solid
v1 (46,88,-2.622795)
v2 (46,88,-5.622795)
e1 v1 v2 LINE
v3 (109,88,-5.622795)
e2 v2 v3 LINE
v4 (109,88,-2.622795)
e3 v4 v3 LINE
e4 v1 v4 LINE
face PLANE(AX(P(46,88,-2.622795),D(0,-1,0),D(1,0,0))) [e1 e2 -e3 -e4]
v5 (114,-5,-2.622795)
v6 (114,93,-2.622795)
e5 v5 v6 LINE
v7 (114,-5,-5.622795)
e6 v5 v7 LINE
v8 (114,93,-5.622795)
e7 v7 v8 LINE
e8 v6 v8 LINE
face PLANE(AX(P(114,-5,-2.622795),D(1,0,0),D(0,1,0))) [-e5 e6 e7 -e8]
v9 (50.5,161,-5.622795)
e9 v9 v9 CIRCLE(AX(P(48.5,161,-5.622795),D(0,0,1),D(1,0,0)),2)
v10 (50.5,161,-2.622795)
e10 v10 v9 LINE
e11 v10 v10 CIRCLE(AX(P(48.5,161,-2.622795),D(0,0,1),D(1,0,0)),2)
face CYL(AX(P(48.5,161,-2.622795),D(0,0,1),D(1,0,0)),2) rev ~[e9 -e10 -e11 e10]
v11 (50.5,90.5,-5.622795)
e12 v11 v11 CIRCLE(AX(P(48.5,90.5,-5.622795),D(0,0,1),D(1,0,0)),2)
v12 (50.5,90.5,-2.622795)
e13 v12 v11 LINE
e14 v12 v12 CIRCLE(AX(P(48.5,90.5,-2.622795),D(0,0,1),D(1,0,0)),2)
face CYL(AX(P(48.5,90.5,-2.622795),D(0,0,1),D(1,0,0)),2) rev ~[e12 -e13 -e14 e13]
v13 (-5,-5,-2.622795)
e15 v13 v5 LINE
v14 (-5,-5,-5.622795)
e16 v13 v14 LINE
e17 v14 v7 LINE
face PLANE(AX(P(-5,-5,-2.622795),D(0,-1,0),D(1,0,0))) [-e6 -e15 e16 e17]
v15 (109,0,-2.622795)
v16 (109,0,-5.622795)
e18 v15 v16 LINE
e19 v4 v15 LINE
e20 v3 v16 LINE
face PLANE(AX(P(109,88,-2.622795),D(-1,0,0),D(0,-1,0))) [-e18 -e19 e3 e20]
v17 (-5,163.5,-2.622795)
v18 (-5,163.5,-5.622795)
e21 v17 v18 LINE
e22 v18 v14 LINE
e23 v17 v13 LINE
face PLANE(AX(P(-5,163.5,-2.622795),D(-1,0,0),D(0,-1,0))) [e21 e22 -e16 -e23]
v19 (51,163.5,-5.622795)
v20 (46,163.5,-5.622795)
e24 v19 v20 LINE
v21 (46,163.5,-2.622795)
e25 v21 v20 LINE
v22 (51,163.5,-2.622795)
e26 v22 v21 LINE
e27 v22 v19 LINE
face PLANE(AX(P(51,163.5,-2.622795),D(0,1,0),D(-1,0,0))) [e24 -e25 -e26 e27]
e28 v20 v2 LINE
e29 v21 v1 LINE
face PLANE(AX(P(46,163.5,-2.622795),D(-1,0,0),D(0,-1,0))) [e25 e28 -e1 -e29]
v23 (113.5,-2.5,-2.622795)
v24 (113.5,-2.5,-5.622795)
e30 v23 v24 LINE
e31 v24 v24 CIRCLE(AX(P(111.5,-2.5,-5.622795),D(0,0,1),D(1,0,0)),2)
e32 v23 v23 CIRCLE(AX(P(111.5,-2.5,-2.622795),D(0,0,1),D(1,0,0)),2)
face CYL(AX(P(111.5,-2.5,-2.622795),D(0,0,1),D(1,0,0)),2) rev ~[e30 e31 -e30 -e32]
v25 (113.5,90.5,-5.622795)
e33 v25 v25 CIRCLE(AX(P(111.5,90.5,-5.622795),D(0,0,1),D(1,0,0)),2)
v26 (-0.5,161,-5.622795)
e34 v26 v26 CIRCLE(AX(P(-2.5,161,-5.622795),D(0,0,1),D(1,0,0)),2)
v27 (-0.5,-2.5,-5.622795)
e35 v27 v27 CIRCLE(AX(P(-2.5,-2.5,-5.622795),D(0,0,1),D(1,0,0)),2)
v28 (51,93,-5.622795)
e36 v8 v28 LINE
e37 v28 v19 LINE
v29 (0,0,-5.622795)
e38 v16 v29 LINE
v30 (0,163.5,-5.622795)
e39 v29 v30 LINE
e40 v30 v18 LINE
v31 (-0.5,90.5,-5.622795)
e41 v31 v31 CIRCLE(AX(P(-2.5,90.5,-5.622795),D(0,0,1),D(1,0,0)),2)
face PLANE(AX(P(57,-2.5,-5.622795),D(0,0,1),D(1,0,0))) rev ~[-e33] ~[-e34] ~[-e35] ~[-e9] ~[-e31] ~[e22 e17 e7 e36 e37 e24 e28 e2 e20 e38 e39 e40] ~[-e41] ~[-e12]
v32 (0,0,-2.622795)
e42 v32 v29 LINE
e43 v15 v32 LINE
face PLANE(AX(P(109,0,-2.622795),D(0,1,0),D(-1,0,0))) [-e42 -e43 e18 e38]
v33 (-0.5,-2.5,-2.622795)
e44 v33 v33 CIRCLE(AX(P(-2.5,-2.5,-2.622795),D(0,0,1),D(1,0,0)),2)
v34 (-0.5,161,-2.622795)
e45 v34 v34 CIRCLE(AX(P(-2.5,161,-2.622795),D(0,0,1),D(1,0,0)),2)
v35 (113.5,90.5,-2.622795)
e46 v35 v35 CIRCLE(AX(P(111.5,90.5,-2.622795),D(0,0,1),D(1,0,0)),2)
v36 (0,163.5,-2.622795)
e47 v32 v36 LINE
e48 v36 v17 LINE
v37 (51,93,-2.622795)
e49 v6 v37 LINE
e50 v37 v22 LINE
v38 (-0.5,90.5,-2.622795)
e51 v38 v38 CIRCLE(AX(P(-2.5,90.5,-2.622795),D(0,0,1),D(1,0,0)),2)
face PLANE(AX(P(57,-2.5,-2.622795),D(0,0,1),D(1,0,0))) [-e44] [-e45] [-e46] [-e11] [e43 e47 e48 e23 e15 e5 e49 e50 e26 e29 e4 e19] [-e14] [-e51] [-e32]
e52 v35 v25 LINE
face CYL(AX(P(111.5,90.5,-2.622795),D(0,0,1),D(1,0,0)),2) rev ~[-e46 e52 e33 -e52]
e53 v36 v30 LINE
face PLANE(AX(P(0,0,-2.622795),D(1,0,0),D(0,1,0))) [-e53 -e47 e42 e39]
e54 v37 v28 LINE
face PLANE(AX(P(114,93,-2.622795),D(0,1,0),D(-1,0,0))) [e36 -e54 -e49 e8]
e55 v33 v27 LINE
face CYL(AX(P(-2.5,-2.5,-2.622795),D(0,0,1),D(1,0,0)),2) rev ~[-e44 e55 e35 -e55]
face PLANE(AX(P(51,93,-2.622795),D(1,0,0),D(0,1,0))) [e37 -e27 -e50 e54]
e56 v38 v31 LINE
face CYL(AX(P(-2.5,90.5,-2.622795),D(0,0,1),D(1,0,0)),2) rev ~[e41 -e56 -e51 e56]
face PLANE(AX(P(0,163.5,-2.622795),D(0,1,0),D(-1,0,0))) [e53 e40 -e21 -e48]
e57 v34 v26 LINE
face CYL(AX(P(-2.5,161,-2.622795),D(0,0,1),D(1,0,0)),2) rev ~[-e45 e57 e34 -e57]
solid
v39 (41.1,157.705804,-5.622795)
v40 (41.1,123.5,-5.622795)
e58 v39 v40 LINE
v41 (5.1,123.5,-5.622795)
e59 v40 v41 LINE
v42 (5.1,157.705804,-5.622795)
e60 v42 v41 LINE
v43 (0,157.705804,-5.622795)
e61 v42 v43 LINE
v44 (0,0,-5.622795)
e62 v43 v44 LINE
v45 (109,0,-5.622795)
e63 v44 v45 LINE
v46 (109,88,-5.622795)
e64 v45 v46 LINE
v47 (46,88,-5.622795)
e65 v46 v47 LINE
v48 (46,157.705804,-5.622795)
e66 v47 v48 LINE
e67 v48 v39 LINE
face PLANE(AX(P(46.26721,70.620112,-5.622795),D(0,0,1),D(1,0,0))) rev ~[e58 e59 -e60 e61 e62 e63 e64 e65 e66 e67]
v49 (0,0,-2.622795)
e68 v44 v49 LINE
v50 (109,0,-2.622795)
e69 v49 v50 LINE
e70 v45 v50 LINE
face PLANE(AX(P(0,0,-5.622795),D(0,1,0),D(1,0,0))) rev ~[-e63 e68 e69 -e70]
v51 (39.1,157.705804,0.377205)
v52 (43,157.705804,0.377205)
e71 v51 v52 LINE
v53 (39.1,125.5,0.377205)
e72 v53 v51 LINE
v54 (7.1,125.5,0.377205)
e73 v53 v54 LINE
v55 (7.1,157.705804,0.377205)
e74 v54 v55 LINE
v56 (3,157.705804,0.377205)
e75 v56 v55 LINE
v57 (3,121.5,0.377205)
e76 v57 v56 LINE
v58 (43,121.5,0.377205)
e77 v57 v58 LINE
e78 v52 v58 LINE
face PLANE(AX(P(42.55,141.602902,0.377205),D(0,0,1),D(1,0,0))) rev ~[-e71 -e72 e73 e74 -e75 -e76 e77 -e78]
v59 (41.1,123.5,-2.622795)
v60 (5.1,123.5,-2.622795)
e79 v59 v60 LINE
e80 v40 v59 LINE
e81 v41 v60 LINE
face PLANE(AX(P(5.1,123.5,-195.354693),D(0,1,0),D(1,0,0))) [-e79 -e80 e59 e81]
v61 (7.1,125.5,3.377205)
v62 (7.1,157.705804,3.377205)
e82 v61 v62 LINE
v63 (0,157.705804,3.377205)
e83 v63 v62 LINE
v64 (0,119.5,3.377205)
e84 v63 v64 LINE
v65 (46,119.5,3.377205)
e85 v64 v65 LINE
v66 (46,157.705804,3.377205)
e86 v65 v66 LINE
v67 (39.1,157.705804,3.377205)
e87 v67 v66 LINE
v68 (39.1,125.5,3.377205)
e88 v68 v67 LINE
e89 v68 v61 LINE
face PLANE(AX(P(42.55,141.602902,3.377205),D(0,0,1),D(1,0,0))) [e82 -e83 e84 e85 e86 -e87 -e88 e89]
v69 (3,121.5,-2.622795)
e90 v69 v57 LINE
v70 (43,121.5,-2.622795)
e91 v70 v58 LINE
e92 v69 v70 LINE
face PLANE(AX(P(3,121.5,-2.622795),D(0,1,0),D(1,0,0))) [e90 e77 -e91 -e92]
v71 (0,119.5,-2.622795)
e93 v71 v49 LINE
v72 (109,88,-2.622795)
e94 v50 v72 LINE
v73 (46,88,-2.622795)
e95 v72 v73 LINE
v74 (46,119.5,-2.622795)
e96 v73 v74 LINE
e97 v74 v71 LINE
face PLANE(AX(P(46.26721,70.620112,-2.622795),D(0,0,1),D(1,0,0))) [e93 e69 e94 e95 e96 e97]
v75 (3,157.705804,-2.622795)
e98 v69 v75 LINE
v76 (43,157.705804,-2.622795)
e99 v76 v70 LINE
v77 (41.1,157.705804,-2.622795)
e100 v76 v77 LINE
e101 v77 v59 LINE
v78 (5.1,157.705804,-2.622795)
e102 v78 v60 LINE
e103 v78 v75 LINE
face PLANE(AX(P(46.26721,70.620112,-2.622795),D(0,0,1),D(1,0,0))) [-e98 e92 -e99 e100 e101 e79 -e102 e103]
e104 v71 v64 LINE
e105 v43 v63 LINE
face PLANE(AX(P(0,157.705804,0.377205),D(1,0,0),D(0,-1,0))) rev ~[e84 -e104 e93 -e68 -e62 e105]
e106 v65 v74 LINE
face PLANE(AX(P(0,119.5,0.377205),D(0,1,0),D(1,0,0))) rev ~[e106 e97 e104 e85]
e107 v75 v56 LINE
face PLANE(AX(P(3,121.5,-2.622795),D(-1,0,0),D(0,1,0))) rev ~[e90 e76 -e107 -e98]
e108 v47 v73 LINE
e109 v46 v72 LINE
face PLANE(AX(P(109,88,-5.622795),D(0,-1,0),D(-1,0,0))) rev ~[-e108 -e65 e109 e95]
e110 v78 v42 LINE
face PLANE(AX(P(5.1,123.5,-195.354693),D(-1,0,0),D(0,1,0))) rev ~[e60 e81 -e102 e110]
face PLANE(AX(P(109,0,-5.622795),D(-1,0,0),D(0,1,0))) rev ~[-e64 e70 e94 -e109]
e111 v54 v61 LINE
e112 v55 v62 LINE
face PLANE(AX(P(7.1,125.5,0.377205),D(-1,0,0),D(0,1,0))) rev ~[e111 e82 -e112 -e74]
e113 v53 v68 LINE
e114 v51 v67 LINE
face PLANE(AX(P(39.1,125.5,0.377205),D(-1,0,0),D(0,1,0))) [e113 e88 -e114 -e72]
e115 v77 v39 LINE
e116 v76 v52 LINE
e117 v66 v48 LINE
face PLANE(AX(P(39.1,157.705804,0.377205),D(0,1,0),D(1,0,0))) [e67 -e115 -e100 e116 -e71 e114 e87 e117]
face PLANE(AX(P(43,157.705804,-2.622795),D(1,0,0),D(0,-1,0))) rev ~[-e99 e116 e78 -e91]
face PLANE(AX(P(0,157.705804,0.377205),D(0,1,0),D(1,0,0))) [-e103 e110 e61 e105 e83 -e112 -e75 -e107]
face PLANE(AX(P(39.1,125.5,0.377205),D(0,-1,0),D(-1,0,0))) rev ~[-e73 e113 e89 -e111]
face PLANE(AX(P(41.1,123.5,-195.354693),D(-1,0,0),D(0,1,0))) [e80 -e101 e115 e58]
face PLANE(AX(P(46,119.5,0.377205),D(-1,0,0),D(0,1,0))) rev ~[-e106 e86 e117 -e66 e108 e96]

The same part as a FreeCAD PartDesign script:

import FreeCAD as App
import Part
import Sketcher

V = App.Vector
Q = App.Units.Quantity


def add_polygon(sketch, points):
    """Adds a closed chain of lines whose ends are joined by coincident constraints."""
    first, n = sketch.GeometryCount, len(points)
    for a, b in zip(points, points[1:] + points[:1]):
        sketch.addGeometry(Part.LineSegment(App.Vector(*a, 0), App.Vector(*b, 0)), False)
    for i in range(n):
        sketch.addConstraint(Sketcher.Constraint("Coincident", first + i, 2, first + (i + 1) % n, 1))

doc = App.newDocument("Part")
body = doc.addObject("PartDesign::Body", "Body")

sketch1 = doc.addObject("Sketcher::SketchObject", "Sketch")
body.addObject(sketch1)
sketch1.AttachmentSupport = (doc.XY_Plane, [""])
sketch1.MapMode = "FlatFace"
sketch1.AttachmentOffset = App.Placement(V(0, 0, -5.622795), App.Rotation())
add_polygon(sketch1, [(0, 0), (109, 0), (109, 88), (46, 88), (46, 157.705804), (0, 157.705804)])
sketch1.addConstraint([
    Sketcher.Constraint("Horizontal", 0),
    Sketcher.Constraint("Vertical", 1),
    Sketcher.Constraint("Horizontal", 2),
    Sketcher.Constraint("Vertical", 3),
    Sketcher.Constraint("Horizontal", 4),
    Sketcher.Constraint("Vertical", 5),
    Sketcher.Constraint("Coincident", 5, 2, -1, 1),
    Sketcher.Constraint("DistanceX", 0, 1, 0, 2, Q("109 mm")),
    Sketcher.Constraint("DistanceX", 2, 2, 2, 1, Q("63 mm")),
    Sketcher.Constraint("DistanceY", 1, 1, 1, 2, Q("88 mm")),
    Sketcher.Constraint("DistanceY", 3, 1, 3, 2, Q("69.705804 mm")),
])
pad1 = doc.addObject("PartDesign::Pad", "Pad")
body.addObject(pad1)
pad1.Profile = sketch1
pad1.Length = 3

sketch2 = doc.addObject("Sketcher::SketchObject", "Sketch001")
body.addObject(sketch2)
sketch2.AttachmentSupport = (doc.XY_Plane, [""])
sketch2.MapMode = "FlatFace"
sketch2.AttachmentOffset = App.Placement(V(0, 0, -2.622795), App.Rotation())
add_polygon(sketch2, [(5.1, 159.5), (5.1, 123.5), (41.1, 123.5), (41.1, 159.5)])
sketch2.addConstraint([
    Sketcher.Constraint("Vertical", 0),
    Sketcher.Constraint("Horizontal", 1),
    Sketcher.Constraint("Vertical", 2),
    Sketcher.Constraint("Horizontal", 3),
    Sketcher.Constraint("Equal", 3, 0),
    Sketcher.Constraint("DistanceX", 1, 1, 1, 2, Q("36 mm")),
    Sketcher.Constraint("DistanceX", -1, 1, 0, 2, Q("5.1 mm")),
    Sketcher.Constraint("DistanceY", -1, 1, 0, 2, Q("123.5 mm")),
])
pocket1 = doc.addObject("PartDesign::Pocket", "Pocket")
body.addObject(pocket1)
pocket1.Profile = sketch2
pocket1.Type = "ThroughAll"
pocket1.Midplane = True

sketch3 = doc.addObject("Sketcher::SketchObject", "Sketch002")
body.addObject(sketch3)
sketch3.AttachmentSupport = (doc.XY_Plane, [""])
sketch3.MapMode = "FlatFace"
sketch3.AttachmentOffset = App.Placement(V(0, 0, -2.622795), App.Rotation())
add_polygon(sketch3, [(46, 119.5), (46, 157.705804), (43, 157.705804), (43, 121.5), (3, 121.5), (3, 157.705804), (0, 157.705804), (0, 119.5)])
sketch3.addConstraint([
    Sketcher.Constraint("Vertical", 0),
    Sketcher.Constraint("Horizontal", 1),
    Sketcher.Constraint("Vertical", 2),
    Sketcher.Constraint("Horizontal", 3),
    Sketcher.Constraint("Vertical", 4),
    Sketcher.Constraint("Horizontal", 5),
    Sketcher.Constraint("Vertical", 6),
    Sketcher.Constraint("Horizontal", 7),
    Sketcher.Constraint("PointOnObject", 5, 2, -2),
    Sketcher.Constraint("Horizontal", 1, 2, 4, 2),
    Sketcher.Constraint("Equal", 1, 5),
    Sketcher.Constraint("DistanceX", 1, 2, 1, 1, Q("3 mm")),
    Sketcher.Constraint("DistanceX", 3, 2, 3, 1, Q("40 mm")),
    Sketcher.Constraint("DistanceY", 6, 2, 3, 2, Q("2 mm")),
    Sketcher.Constraint("DistanceY", -1, 1, 2, 2, Q("121.5 mm")),
    Sketcher.Constraint("DistanceY", 0, 1, 0, 2, Q("38.205804 mm")),
])
pad2 = doc.addObject("PartDesign::Pad", "Pad001")
body.addObject(pad2)
pad2.Profile = sketch3
pad2.Length = 3

sketch4 = doc.addObject("Sketcher::SketchObject", "Sketch003")
body.addObject(sketch4)
sketch4.AttachmentSupport = (doc.XY_Plane, [""])
sketch4.MapMode = "FlatFace"
sketch4.AttachmentOffset = App.Placement(V(0, 0, 0.377205), App.Rotation())
add_polygon(sketch4, [(39.1, 157.705804), (39.1, 125.5), (7.1, 125.5), (7.1, 157.705804), (0, 157.705804), (0, 119.5), (46, 119.5), (46, 157.705804)])
sketch4.addConstraint([
    Sketcher.Constraint("Vertical", 0),
    Sketcher.Constraint("Horizontal", 1),
    Sketcher.Constraint("Vertical", 2),
    Sketcher.Constraint("Horizontal", 3),
    Sketcher.Constraint("Vertical", 4),
    Sketcher.Constraint("Horizontal", 5),
    Sketcher.Constraint("Vertical", 6),
    Sketcher.Constraint("Horizontal", 7),
    Sketcher.Constraint("PointOnObject", 3, 2, -2),
    Sketcher.Constraint("Horizontal", 3, 2, 6, 2),
    Sketcher.Constraint("DistanceX", 1, 2, 1, 1, Q("32 mm")),
    Sketcher.Constraint("DistanceX", 5, 1, 5, 2, Q("46 mm")),
    Sketcher.Constraint("DistanceX", 3, 2, 3, 1, Q("7.1 mm")),
    Sketcher.Constraint("DistanceY", 4, 2, 1, 2, Q("6 mm")),
    Sketcher.Constraint("DistanceY", -1, 1, 0, 2, Q("125.5 mm")),
    Sketcher.Constraint("DistanceY", 0, 2, 0, 1, Q("32.205804 mm")),
])
pad3 = doc.addObject("PartDesign::Pad", "Pad002")
body.addObject(pad3)
pad3.Profile = sketch4
pad3.Length = 3
body2 = doc.addObject("PartDesign::Body", "Body001")

sketch5 = doc.addObject("Sketcher::SketchObject", "Sketch004")
body2.addObject(sketch5)
sketch5.AttachmentSupport = (doc.getObject("XY_Plane001"), [""])
sketch5.MapMode = "FlatFace"
sketch5.AttachmentOffset = App.Placement(V(0, 0, -2.622795), App.Rotation())
add_polygon(sketch5, [(114, -5), (114, 93), (51, 93), (51, 163.5), (46, 163.5), (46, 88), (109, 88), (109, 0), (0, 0), (0, 163.5), (-5, 163.5), (-5, -5)])
sketch5.addConstraint([
    Sketcher.Constraint("Vertical", 0),
    Sketcher.Constraint("Horizontal", 1),
    Sketcher.Constraint("Vertical", 2),
    Sketcher.Constraint("Horizontal", 3),
    Sketcher.Constraint("Vertical", 4),
    Sketcher.Constraint("Horizontal", 5),
    Sketcher.Constraint("Vertical", 6),
    Sketcher.Constraint("Horizontal", 7),
    Sketcher.Constraint("Vertical", 8),
    Sketcher.Constraint("Horizontal", 9),
    Sketcher.Constraint("Vertical", 10),
    Sketcher.Constraint("Horizontal", 11),
    Sketcher.Constraint("Coincident", 7, 2, -1, 1),
    Sketcher.Constraint("Horizontal", 3, 2, 8, 2),
    Sketcher.Constraint("Equal", 1, 5),
    Sketcher.Constraint("Equal", 3, 9),
    Sketcher.Constraint("DistanceX", 1, 2, 1, 1, Q("63 mm")),
    Sketcher.Constraint("DistanceX", 3, 2, 3, 1, Q("5 mm")),
    Sketcher.Constraint("DistanceX", 7, 2, 7, 1, Q("109 mm")),
    Sketcher.Constraint("DistanceY", 0, 1, 0, 2, Q("98 mm")),
    Sketcher.Constraint("DistanceY", 6, 2, 6, 1, Q("88 mm")),
    Sketcher.Constraint("DistanceY", 2, 1, 2, 2, Q("70.5 mm")),
    Sketcher.Constraint("DistanceY", 4, 2, 4, 1, Q("75.5 mm")),
])
pad4 = doc.addObject("PartDesign::Pad", "Pad003")
body2.addObject(pad4)
pad4.Profile = sketch5
pad4.Length = 3
pad4.Reversed = True

sketch6 = doc.addObject("Sketcher::SketchObject", "Sketch005")
body2.addObject(sketch6)
sketch6.AttachmentSupport = (doc.getObject("XY_Plane001"), [""])
sketch6.MapMode = "FlatFace"
sketch6.AttachmentOffset = App.Placement(V(0, 0, -2.622795), App.Rotation())
sketch6.addGeometry([
    Part.Circle(V(-2.5, -2.5, 0), V(0, 0, 1), 2),
    Part.Circle(V(111.5, -2.5, 0), V(0, 0, 1), 2),
    Part.Circle(V(111.5, 90.5, 0), V(0, 0, 1), 2),
    Part.Circle(V(48.5, 90.5, 0), V(0, 0, 1), 2),
    Part.Circle(V(48.5, 161, 0), V(0, 0, 1), 2),
    Part.Circle(V(-2.5, 161, 0), V(0, 0, 1), 2),
    Part.Circle(V(-2.5, 90.5, 0), V(0, 0, 1), 2),
], False)
sketch6.addConstraint([
    Sketcher.Constraint("Equal", 0, 1),
    Sketcher.Constraint("Equal", 1, 2),
    Sketcher.Constraint("Equal", 2, 3),
    Sketcher.Constraint("Equal", 3, 4),
    Sketcher.Constraint("Equal", 4, 5),
    Sketcher.Constraint("Equal", 5, 6),
    Sketcher.Constraint("Horizontal", 0, 3, 1, 3),
    Sketcher.Constraint("Horizontal", 2, 3, 3, 3),
    Sketcher.Constraint("Horizontal", 4, 3, 5, 3),
    Sketcher.Constraint("Horizontal", 3, 3, 6, 3),
    Sketcher.Constraint("Vertical", 1, 3, 2, 3),
    Sketcher.Constraint("Vertical", 3, 3, 4, 3),
    Sketcher.Constraint("Vertical", 0, 3, 5, 3),
    Sketcher.Constraint("Vertical", 5, 3, 6, 3),
    Sketcher.Constraint("Diameter", 0, Q("4 mm")),
    Sketcher.Constraint("DistanceY", -1, 1, 4, 3, Q("161 mm")),
    Sketcher.Constraint("DistanceX", 0, 3, 1, 3, Q("114 mm")),
    Sketcher.Constraint("DistanceY", 1, 3, 2, 3, Q("93 mm")),
    Sketcher.Constraint("DistanceX", 3, 3, 2, 3, Q("63 mm")),
    Sketcher.Constraint("DistanceX", 0, 3, -1, 1, Q("2.5 mm")),
    Sketcher.Constraint("DistanceY", 0, 3, -1, 1, Q("2.5 mm")),
])
pocket2 = doc.addObject("PartDesign::Pocket", "Pocket001")
body2.addObject(pocket2)
pocket2.Profile = sketch6
pocket2.Length = 3

doc.recompute()
